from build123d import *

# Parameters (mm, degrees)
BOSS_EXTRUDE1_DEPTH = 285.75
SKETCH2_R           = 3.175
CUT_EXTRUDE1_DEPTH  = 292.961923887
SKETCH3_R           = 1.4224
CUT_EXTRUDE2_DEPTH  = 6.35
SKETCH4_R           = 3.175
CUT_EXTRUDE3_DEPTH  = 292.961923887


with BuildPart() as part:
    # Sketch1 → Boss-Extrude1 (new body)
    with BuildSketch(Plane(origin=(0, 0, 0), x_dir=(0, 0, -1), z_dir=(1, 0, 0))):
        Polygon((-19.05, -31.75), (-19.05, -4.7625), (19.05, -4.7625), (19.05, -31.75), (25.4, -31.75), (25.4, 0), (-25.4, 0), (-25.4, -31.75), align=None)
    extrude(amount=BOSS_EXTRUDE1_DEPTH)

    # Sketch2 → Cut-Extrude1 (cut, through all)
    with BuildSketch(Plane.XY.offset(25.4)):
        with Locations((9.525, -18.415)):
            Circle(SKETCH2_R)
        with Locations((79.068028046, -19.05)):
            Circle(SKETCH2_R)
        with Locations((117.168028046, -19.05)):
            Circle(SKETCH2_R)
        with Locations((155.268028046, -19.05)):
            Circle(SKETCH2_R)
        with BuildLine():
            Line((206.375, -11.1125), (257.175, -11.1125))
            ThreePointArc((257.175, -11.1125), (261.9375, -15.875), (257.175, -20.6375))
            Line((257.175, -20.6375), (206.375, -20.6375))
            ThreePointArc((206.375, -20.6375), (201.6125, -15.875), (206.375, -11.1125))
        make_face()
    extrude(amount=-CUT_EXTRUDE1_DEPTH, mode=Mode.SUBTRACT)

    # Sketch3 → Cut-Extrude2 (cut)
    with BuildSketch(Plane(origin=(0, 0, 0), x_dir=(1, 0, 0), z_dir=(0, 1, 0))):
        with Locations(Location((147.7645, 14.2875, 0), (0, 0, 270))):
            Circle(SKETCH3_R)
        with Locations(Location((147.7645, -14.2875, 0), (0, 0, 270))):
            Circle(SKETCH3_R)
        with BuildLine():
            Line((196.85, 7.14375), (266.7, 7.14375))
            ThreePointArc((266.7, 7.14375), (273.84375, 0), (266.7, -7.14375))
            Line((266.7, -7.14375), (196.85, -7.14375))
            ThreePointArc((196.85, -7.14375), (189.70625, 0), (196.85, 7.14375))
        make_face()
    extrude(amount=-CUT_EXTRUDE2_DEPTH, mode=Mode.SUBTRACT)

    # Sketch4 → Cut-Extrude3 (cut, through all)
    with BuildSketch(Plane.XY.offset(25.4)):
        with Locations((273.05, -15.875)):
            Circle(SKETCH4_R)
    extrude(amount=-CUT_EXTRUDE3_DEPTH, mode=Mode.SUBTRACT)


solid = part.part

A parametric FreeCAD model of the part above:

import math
import FreeCAD as App
import Part
import Sketcher

V = App.Vector
Q = App.Units.Quantity

doc = App.newDocument("Part")
body = doc.addObject("PartDesign::Body", "Body")

sketch1 = body.newObject("Sketcher::SketchObject", "Sketch")
sketch1.AttachmentSupport = (doc.getObject("YZ_Plane"), [""])
sketch1.MapMode = "FlatFace"
sketch1.addGeometry([
    Part.LineSegment(V(-32, 19, 0), V(-5, 19, 0)),
    Part.LineSegment(V(-5, 19, 0), V(-5, -19, 0)),
    Part.LineSegment(V(-5, -19, 0), V(-32, -19, 0)),
    Part.LineSegment(V(-32, -19, 0), V(-32, -25, 0)),
    Part.LineSegment(V(-32, -25, 0), V(0, -25, 0)),
    Part.LineSegment(V(0, -25, 0), V(0, 25, 0)),
    Part.LineSegment(V(0, 25, 0), V(-32, 25, 0)),
    Part.LineSegment(V(-32, 25, 0), V(-32, 19, 0)),
], False)
sketch1.addConstraint([
    Sketcher.Constraint("Coincident", 0, 2, 1, 1),
    Sketcher.Constraint("Coincident", 1, 2, 2, 1),
    Sketcher.Constraint("Coincident", 2, 2, 3, 1),
    Sketcher.Constraint("Coincident", 3, 2, 4, 1),
    Sketcher.Constraint("Coincident", 4, 2, 5, 1),
    Sketcher.Constraint("Coincident", 5, 2, 6, 1),
    Sketcher.Constraint("Coincident", 6, 2, 7, 1),
    Sketcher.Constraint("Coincident", 7, 2, 0, 1),
    Sketcher.Constraint("Horizontal", 0),
    Sketcher.Constraint("Vertical", 1),
    Sketcher.Constraint("Horizontal", 2),
    Sketcher.Constraint("Vertical", 3),
    Sketcher.Constraint("Horizontal", 4),
    Sketcher.Constraint("Vertical", 5),
    Sketcher.Constraint("Horizontal", 6),
    Sketcher.Constraint("Vertical", 7),
    Sketcher.Constraint("Symmetric", 4, 2, 5, 2, -1, 1),
    Sketcher.Constraint("Symmetric", 2, 2, 7, 2, -1),
    Sketcher.Constraint("DistanceY", 5, 1, 5, 2, Q("2 in")),
    Sketcher.Constraint("DistanceY", 1, 2, 1, 1, Q("1.5 in")),
    Sketcher.Constraint("DistanceX", 4, 1, 4, 2, Q("1.25 in")),
    Sketcher.Constraint("DistanceX", 0, 1, 0, 2, Q("1.0625 in")),
])
pad1 = body.newObject("PartDesign::Pad", "Pad")
pad1.Profile = sketch1
pad1.Length = Q("11.25 in")

sketch2 = body.newObject("Sketcher::SketchObject", "Sketch001")
sketch2.AttachmentSupport = (doc.getObject("XY_Plane"), [""])
sketch2.MapMode = "FlatFace"
sketch2.AttachmentOffset = App.Placement(V(0, 0, 1 * 25.4), App.Rotation())
sketch2.addGeometry([
    Part.Circle(V(9.5, -18.4, 0), V(0, 0, 1), 3.2),
    Part.Circle(V(79.1, -19.1, 0), V(0, 0, 1), 3.2),
    Part.Circle(V(117.2, -19.1, 0), V(0, 0, 1), 3.2),
    Part.Circle(V(155.3, -19.1, 0), V(0, 0, 1), 3.2),
    Part.LineSegment(V(257.2, -11.1, 0), V(206.4, -11.1, 0)),
    Part.ArcOfCircle(Part.Circle(V(206.4, -15.9, 0), V(0, 0, 1), 4.8), math.radians(90), math.radians(270)),
    Part.LineSegment(V(206.4, -20.6, 0), V(257.2, -20.6, 0)),
    Part.ArcOfCircle(Part.Circle(V(257.2, -15.9, 0), V(0, 0, 1), 4.8), math.radians(-90), math.radians(90)),
], False)
sketch2.addConstraint([
    Sketcher.Constraint("Tangent", 4, 2, 5, 1),
    Sketcher.Constraint("Tangent", 5, 2, 6, 1),
    Sketcher.Constraint("Tangent", 6, 2, 7, 1),
    Sketcher.Constraint("Tangent", 7, 2, 4, 1),
    Sketcher.Constraint("Horizontal", 4),
    Sketcher.Constraint("Horizontal", 6),
    Sketcher.Constraint("Equal", 0, 1),
    Sketcher.Constraint("Equal", 1, 2),
    Sketcher.Constraint("Equal", 2, 3),
    Sketcher.Constraint("Horizontal", 1, 3, 2, 3),
    Sketcher.Constraint("Horizontal", 2, 3, 3, 3),
    Sketcher.Constraint("Diameter", 0, Q("0.25 in")),
    Sketcher.Constraint("DistanceX", 4, 2, 4, 1, Q("2 in")),
    Sketcher.Constraint("Radius", 5, Q("0.1875 in")),
    Sketcher.Constraint("DistanceX", 1, 3, 3, 3, Q("3 in")),
    Sketcher.Constraint("DistanceX", 1, 3, 2, 3, Q("1.5 in")),
    Sketcher.Constraint("DistanceY", 0, 3, 5, 3, Q("0.1 in")),
    Sketcher.Constraint("DistanceY", 1, 3, -1, 1, Q("0.75 in")),
    Sketcher.Constraint("DistanceX", 0, 3, 5, 3, Q("7.75 in")),
    Sketcher.Constraint("DistanceX", -1, 1, 0, 3, Q("0.375 in")),
    Sketcher.Constraint("DistanceY", 0, 3, -1, 1, Q("0.725 in")),
    Sketcher.Constraint("DistanceX", -1, 1, 1, 3, Q("79.068028 mm")),
])
pocket1 = body.newObject("PartDesign::Pocket", "Pocket")
pocket1.Profile = sketch2
pocket1.Type = "ThroughAll"

sketch3 = body.newObject("Sketcher::SketchObject", "Sketch002")
sketch3.AttachmentSupport = (doc.getObject("XZ_Plane"), [""])
sketch3.MapMode = "FlatFace"
sketch3.addGeometry([
    Part.Circle(V(147.8, -14.3, 0), V(0, 0, 1), 1.4),
    Part.Circle(V(147.8, 14.3, 0), V(0, 0, 1), 1.4),
    Part.LineSegment(V(266.7, -7.1, 0), V(196.8, -7.1, 0)),
    Part.ArcOfCircle(Part.Circle(V(196.8, 0, 0), V(0, 0, 1), 7.1), math.radians(90), math.radians(270)),
    Part.LineSegment(V(196.8, 7.1, 0), V(266.7, 7.1, 0)),
    Part.ArcOfCircle(Part.Circle(V(266.7, 0, 0), V(0, 0, 1), 7.1), math.radians(-90), math.radians(90)),
], False)
sketch3.addConstraint([
    Sketcher.Constraint("Tangent", 2, 2, 3, 2),
    Sketcher.Constraint("Tangent", 3, 1, 4, 1),
    Sketcher.Constraint("Tangent", 4, 2, 5, 2),
    Sketcher.Constraint("Tangent", 5, 1, 2, 1),
    Sketcher.Constraint("Horizontal", 2),
    Sketcher.Constraint("Horizontal", 4),
    Sketcher.Constraint("Equal", 0, 1),
    Sketcher.Constraint("Symmetric", 0, 3, 1, 3, -1),
    Sketcher.Constraint("PointOnObject", 3, 3, -1),
    Sketcher.Constraint("Diameter", 0, Q("0.112 in")),
    Sketcher.Constraint("Radius", 3, Q("0.28125 in")),
    Sketcher.Constraint("DistanceX", 2, 2, 2, 1, Q("2.75 in")),
    Sketcher.Constraint("DistanceX", -1, 1, 5, 3, Q("10.5 in")),
    Sketcher.Constraint("DistanceY", 0, 3, -1, 1, Q("0.5625 in")),
    Sketcher.Constraint("DistanceX", -1, 1, 0, 3, Q("5.8175 in")),
])
pocket2 = body.newObject("PartDesign::Pocket", "Pocket001")
pocket2.Profile = sketch3
pocket2.Length = Q("0.25 in")
pocket2.Reversed = True

sketch4 = body.newObject("Sketcher::SketchObject", "Sketch003")
sketch4.AttachmentSupport = (doc.getObject("XY_Plane"), [""])
sketch4.MapMode = "FlatFace"
sketch4.AttachmentOffset = App.Placement(V(0, 0, 1 * 25.4), App.Rotation())
sketch4.addGeometry(Part.Circle(V(273.1, -15.9, 0), V(0, 0, 1), 3.2), False)
sketch4.addConstraint([
    Sketcher.Constraint("Diameter", 0, Q("0.25 in")),
    Sketcher.Constraint("DistanceX", -1, 1, 0, 3, Q("10.75 in")),
    Sketcher.Constraint("DistanceY", 0, 3, -1, 1, Q("0.625 in")),
])
pocket3 = body.newObject("PartDesign::Pocket", "Pocket002")
pocket3.Profile = sketch4
pocket3.Type = "ThroughAll"

doc.recompute()
